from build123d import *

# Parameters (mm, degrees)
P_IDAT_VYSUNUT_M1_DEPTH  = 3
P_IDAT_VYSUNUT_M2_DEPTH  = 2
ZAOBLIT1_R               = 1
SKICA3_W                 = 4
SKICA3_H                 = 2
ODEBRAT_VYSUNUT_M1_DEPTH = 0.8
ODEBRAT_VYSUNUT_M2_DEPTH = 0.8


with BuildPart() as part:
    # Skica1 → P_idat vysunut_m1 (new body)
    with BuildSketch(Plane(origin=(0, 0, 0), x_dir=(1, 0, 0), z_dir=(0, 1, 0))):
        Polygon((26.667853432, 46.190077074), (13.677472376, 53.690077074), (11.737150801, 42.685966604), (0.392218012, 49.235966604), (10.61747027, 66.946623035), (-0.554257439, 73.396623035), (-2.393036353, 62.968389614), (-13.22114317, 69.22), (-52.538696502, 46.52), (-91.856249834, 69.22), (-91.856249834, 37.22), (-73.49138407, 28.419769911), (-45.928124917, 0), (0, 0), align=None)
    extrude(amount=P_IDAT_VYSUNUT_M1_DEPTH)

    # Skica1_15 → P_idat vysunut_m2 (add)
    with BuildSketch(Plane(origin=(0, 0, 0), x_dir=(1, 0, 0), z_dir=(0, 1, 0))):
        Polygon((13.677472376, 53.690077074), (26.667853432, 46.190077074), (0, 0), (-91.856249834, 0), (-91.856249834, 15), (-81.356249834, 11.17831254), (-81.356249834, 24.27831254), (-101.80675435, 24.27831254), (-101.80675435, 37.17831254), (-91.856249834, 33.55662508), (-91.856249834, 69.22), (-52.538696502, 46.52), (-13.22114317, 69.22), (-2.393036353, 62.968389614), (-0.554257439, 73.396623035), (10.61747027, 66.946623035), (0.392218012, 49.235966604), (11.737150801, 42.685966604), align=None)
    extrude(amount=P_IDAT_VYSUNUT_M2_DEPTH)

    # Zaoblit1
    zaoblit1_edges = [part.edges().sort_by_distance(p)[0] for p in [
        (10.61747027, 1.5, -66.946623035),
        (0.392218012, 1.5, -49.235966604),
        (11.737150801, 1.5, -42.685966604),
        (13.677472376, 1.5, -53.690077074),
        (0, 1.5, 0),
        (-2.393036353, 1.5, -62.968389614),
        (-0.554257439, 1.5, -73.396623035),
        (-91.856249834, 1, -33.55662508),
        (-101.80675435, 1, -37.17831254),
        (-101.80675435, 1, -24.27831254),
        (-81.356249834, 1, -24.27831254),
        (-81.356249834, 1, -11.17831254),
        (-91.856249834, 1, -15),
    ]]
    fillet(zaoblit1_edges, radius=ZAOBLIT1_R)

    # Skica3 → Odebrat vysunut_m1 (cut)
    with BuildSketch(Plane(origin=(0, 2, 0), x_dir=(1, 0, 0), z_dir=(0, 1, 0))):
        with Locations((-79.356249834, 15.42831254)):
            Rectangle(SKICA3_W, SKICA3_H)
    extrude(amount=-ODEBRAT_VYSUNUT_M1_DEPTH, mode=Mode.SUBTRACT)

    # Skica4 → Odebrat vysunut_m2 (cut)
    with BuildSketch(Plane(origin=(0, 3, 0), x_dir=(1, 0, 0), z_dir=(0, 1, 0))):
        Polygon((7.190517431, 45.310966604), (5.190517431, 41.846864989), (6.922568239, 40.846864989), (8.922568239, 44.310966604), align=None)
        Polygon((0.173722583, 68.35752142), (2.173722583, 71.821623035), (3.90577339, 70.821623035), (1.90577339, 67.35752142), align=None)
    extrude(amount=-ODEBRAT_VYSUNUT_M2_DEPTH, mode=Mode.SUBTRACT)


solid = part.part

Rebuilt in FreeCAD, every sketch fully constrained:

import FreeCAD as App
import Part
import Sketcher
Q = App.Units.Quantity


def edges_at(feature, points):
    """Names of the edges that pass closest to the given points."""
    edges = feature.Shape.Edges
    near = lambda p: min(range(len(edges)), key=lambda i: edges[i].distToShape(Part.Vertex(*p))[0])
    return sorted({f"Edge{near(p) + 1}" for p in points})


def add_polygon(sketch, points):
    """Adds a closed chain of lines whose ends are joined by coincident constraints."""
    first, n = sketch.GeometryCount, len(points)
    for a, b in zip(points, points[1:] + points[:1]):
        sketch.addGeometry(Part.LineSegment(App.Vector(*a, 0), App.Vector(*b, 0)), False)
    for i in range(n):
        sketch.addConstraint(Sketcher.Constraint("Coincident", first + i, 2, first + (i + 1) % n, 1))

doc = App.newDocument("Part")
body = doc.addObject("PartDesign::Body", "Body")

# Sketch on XZ plane
sketch1 = body.newObject("Sketcher::SketchObject", "Sketch")
sketch1.AttachmentSupport = (doc.getObject("XZ_Plane"), [""])
sketch1.MapMode = "FlatFace"
add_polygon(sketch1, [(27, -46), (14, -54), (12, -43), (0, -49), (11, -67), (-1, -73), (-2, -63), (-13, -69), (-53, -47), (-92, -69), (-92, -37), (-73, -28), (-46, 0), (0, 0)])  # lines 0-13
sketch1.addConstraint([
    Sketcher.Constraint("Vertical", 9),
    Sketcher.Constraint("Horizontal", 12),
    Sketcher.Constraint("Coincident", 12, 2, -1, 1),
    Sketcher.Constraint("Parallel", 0, 2),
    Sketcher.Constraint("Perpendicular", 2, 3),
    Sketcher.Constraint("Perpendicular", 3, 4),
    Sketcher.Constraint("Parallel", 1, 5),
    Sketcher.Constraint("Parallel", 4, 6),
    Sketcher.Constraint("Parallel", 6, 8),
    Sketcher.Constraint("Perpendicular", 8, 13),
    Sketcher.Constraint("Horizontal", 6, 2, 8, 2),
    Sketcher.Constraint("Equal", 7, 8),
    Sketcher.Constraint("DistanceY", 9, 1, 9, 2, Q("32 mm")),
    Sketcher.Constraint("Angle", 0, Q("-150 deg")),
    Sketcher.Constraint("Angle", 1, Q("100 deg")),
    Sketcher.Constraint("Distance", 0, Q("15 mm")),
    Sketcher.Constraint("Distance", 2, Q("13.1 mm")),
    Sketcher.Constraint("Distance", 4, Q("12.9 mm")),
    Sketcher.Constraint("Distance", 7, Q("45.4 mm")),
    Sketcher.Constraint("DistanceY", 6, 2, -1, 1, Q("69.22 mm")),
    Sketcher.Constraint("Distance", 6, Q("12.503221 mm")),
    Sketcher.Constraint("DistanceX", 12, 1, 12, 2, Q("45.928125 mm")),
    Sketcher.Constraint("DistanceX", -1, 1, 1, 2, Q("11.737151 mm")),
    Sketcher.Constraint("DistanceX", -1, 1, 3, 2, Q("10.61747 mm")),
    Sketcher.Constraint("DistanceX", 8, 2, -1, 1, Q("91.85625 mm")),
    Sketcher.Constraint("DistanceY", 10, 2, -1, 1, Q("28.41977 mm")),
    Sketcher.Constraint("DistanceX", 10, 2, 6, 2, Q("60.270241 mm")),
])
pad1 = body.newObject("PartDesign::Pad", "Pad")
pad1.Profile = sketch1
pad1.Length = 3
pad1.Reversed = True

# Sketch on XZ plane
sketch2 = body.newObject("Sketcher::SketchObject", "Sketch001")
sketch2.AttachmentSupport = (doc.getObject("XZ_Plane"), [""])
sketch2.MapMode = "FlatFace"
add_polygon(sketch2, [(27, -46), (14, -54), (12, -43), (0, -49), (11, -67), (-1, -73), (-2, -63), (-13, -69), (-53, -47), (-92, -69), (-92, -34), (-102, -37), (-102, -24), (-81, -24), (-81, -11), (-92, -15), (-92, 0), (0, 0)])  # lines 0-17
sketch2.addConstraint([
    Sketcher.Constraint("Vertical", 9),
    Sketcher.Constraint("Vertical", 11),
    Sketcher.Constraint("Horizontal", 12),
    Sketcher.Constraint("Vertical", 13),
    Sketcher.Constraint("Vertical", 15),
    Sketcher.Constraint("Horizontal", 16),
    Sketcher.Constraint("Coincident", 16, 2, -1, 1),
    Sketcher.Constraint("Parallel", 0, 2),
    Sketcher.Constraint("Perpendicular", 2, 3),
    Sketcher.Constraint("Perpendicular", 3, 4),
    Sketcher.Constraint("Parallel", 1, 5),
    Sketcher.Constraint("Parallel", 4, 6),
    Sketcher.Constraint("Parallel", 6, 8),
    Sketcher.Constraint("Parallel", 10, 14),
    Sketcher.Constraint("Perpendicular", 8, 17),
    Sketcher.Constraint("Horizontal", 6, 2, 8, 2),
    Sketcher.Constraint("Vertical", 9, 2, 14, 2),
    Sketcher.Constraint("Equal", 7, 8),
    Sketcher.Constraint("Equal", 5, 10),
    Sketcher.Constraint("Equal", 1, 14),
    Sketcher.Constraint("DistanceY", 15, 1, 15, 2, Q("15 mm")),
    Sketcher.Constraint("Angle", 0, Q("-150 deg")),
    Sketcher.Constraint("Angle", 1, Q("100 deg")),
    Sketcher.Constraint("Angle", 10, Q("-160 deg")),
    Sketcher.Constraint("Distance", 0, Q("15 mm")),
    Sketcher.Constraint("DistanceY", 11, 1, 11, 2, Q("12.9 mm")),
    Sketcher.Constraint("DistanceY", 13, 1, 13, 2, Q("13.1 mm")),
    Sketcher.Constraint("Distance", 2, Q("13.1 mm")),
    Sketcher.Constraint("Distance", 4, Q("12.9 mm")),
    Sketcher.Constraint("Distance", 7, Q("45.4 mm")),
    Sketcher.Constraint("DistanceX", 9, 2, 12, 2, Q("10.5 mm")),
    Sketcher.Constraint("DistanceY", 6, 2, -1, 1, Q("69.22 mm")),
    Sketcher.Constraint("DistanceX", 16, 1, 16, 2, Q("91.85625 mm")),
    Sketcher.Constraint("Distance", 6, Q("12.503221 mm")),
    Sketcher.Constraint("DistanceX", -1, 1, 1, 2, Q("11.737151 mm")),
])
pad2 = body.newObject("PartDesign::Pad", "Pad001")
pad2.Profile = sketch2
pad2.Length = 2
pad2.Reversed = True
doc.recompute()

fillet = body.newObject("PartDesign::Fillet", "Fillet")
fillet.Base = (pad2, edges_at(pad2, [
    (10.617, 1.5, -66.947),
    (0.392, 1.5, -49.236),
    (11.737, 1.5, -42.686),
    (13.677, 1.5, -53.69),
    (0, 1.5, 0),
    (-2.393, 1.5, -62.968),
    (-0.554, 1.5, -73.397),
    (-91.856, 1, -33.557),
    (-101.807, 1, -37.178),
    (-101.807, 1, -24.278),
    (-81.356, 1, -24.278),
    (-81.356, 1, -11.178),
    (-91.856, 1, -15),
]))
fillet.Radius = 1

# Sketch on XZ plane
sketch3 = body.newObject("Sketcher::SketchObject", "Sketch002")
sketch3.AttachmentSupport = (doc.getObject("XZ_Plane"), [""])
sketch3.MapMode = "FlatFace"
sketch3.AttachmentOffset = App.Placement(App.Vector(0, 0, -2), App.Rotation())
add_polygon(sketch3, [(-81.4, -16.4), (-81.4, -14.4), (-77.4, -14.4), (-77.4, -16.4)])  # lines 0-3
sketch3.addConstraint([
    Sketcher.Constraint("Vertical", 0),
    Sketcher.Constraint("Horizontal", 1),
    Sketcher.Constraint("Vertical", 2),
    Sketcher.Constraint("Horizontal", 3),
    Sketcher.Constraint("DistanceX", 1, 1, 1, 2, Q("4 mm")),
    Sketcher.Constraint("DistanceY", 0, 1, 0, 2, Q("2 mm")),
    Sketcher.Constraint("DistanceX", 0, 2, -1, 1, Q("81.35625 mm")),
    Sketcher.Constraint("DistanceY", 0, 2, -1, 1, Q("14.428313 mm")),
])
pocket1 = body.newObject("PartDesign::Pocket", "Pocket")
pocket1.Profile = sketch3
pocket1.Length = 0.8
pocket1.Reversed = True

# Sketch on XZ plane
sketch4 = body.newObject("Sketcher::SketchObject", "Sketch003")
sketch4.AttachmentSupport = (doc.getObject("XZ_Plane"), [""])
sketch4.MapMode = "FlatFace"
sketch4.AttachmentOffset = App.Placement(App.Vector(0, 0, -3), App.Rotation())
add_polygon(sketch4, [(7.2, -45.3), (5.2, -41.8), (6.9, -40.8), (8.9, -44.3)])  # lines 0-3
add_polygon(sketch4, [(2.2, -71.8), (0.2, -68.4), (1.9, -67.4), (3.9, -70.8)])  # lines 4-7
sketch4.addConstraint([
    Sketcher.Constraint("Perpendicular", 0, 1),
    Sketcher.Constraint("Perpendicular", 1, 2),
    Sketcher.Constraint("Perpendicular", 2, 3),
    Sketcher.Constraint("Perpendicular", 3, 4),
    Sketcher.Constraint("Perpendicular", 4, 5),
    Sketcher.Constraint("Perpendicular", 5, 6),
    Sketcher.Constraint("Perpendicular", 6, 7),
    Sketcher.Constraint("Equal", 2, 4),
    Sketcher.Constraint("Equal", 3, 5),
    Sketcher.Constraint("Angle", 0, Q("120 deg")),
    Sketcher.Constraint("Distance", 0, Q("4 mm")),
    Sketcher.Constraint("Distance", 1, Q("2 mm")),
    Sketcher.Constraint("DistanceX", -1, 1, 1, 2, Q("6.922568 mm")),
    Sketcher.Constraint("DistanceY", 4, 2, -1, 1, Q("68.357521 mm")),
    Sketcher.Constraint("DistanceY", 6, 2, 0, 2, Q("28.974758 mm")),
    Sketcher.Constraint("DistanceX", -1, 1, 4, 2, Q("0.173723 mm")),
])
pocket2 = body.newObject("PartDesign::Pocket", "Pocket001")
pocket2.Profile = sketch4
pocket2.Length = 0.8
pocket2.Reversed = True

doc.recompute()
